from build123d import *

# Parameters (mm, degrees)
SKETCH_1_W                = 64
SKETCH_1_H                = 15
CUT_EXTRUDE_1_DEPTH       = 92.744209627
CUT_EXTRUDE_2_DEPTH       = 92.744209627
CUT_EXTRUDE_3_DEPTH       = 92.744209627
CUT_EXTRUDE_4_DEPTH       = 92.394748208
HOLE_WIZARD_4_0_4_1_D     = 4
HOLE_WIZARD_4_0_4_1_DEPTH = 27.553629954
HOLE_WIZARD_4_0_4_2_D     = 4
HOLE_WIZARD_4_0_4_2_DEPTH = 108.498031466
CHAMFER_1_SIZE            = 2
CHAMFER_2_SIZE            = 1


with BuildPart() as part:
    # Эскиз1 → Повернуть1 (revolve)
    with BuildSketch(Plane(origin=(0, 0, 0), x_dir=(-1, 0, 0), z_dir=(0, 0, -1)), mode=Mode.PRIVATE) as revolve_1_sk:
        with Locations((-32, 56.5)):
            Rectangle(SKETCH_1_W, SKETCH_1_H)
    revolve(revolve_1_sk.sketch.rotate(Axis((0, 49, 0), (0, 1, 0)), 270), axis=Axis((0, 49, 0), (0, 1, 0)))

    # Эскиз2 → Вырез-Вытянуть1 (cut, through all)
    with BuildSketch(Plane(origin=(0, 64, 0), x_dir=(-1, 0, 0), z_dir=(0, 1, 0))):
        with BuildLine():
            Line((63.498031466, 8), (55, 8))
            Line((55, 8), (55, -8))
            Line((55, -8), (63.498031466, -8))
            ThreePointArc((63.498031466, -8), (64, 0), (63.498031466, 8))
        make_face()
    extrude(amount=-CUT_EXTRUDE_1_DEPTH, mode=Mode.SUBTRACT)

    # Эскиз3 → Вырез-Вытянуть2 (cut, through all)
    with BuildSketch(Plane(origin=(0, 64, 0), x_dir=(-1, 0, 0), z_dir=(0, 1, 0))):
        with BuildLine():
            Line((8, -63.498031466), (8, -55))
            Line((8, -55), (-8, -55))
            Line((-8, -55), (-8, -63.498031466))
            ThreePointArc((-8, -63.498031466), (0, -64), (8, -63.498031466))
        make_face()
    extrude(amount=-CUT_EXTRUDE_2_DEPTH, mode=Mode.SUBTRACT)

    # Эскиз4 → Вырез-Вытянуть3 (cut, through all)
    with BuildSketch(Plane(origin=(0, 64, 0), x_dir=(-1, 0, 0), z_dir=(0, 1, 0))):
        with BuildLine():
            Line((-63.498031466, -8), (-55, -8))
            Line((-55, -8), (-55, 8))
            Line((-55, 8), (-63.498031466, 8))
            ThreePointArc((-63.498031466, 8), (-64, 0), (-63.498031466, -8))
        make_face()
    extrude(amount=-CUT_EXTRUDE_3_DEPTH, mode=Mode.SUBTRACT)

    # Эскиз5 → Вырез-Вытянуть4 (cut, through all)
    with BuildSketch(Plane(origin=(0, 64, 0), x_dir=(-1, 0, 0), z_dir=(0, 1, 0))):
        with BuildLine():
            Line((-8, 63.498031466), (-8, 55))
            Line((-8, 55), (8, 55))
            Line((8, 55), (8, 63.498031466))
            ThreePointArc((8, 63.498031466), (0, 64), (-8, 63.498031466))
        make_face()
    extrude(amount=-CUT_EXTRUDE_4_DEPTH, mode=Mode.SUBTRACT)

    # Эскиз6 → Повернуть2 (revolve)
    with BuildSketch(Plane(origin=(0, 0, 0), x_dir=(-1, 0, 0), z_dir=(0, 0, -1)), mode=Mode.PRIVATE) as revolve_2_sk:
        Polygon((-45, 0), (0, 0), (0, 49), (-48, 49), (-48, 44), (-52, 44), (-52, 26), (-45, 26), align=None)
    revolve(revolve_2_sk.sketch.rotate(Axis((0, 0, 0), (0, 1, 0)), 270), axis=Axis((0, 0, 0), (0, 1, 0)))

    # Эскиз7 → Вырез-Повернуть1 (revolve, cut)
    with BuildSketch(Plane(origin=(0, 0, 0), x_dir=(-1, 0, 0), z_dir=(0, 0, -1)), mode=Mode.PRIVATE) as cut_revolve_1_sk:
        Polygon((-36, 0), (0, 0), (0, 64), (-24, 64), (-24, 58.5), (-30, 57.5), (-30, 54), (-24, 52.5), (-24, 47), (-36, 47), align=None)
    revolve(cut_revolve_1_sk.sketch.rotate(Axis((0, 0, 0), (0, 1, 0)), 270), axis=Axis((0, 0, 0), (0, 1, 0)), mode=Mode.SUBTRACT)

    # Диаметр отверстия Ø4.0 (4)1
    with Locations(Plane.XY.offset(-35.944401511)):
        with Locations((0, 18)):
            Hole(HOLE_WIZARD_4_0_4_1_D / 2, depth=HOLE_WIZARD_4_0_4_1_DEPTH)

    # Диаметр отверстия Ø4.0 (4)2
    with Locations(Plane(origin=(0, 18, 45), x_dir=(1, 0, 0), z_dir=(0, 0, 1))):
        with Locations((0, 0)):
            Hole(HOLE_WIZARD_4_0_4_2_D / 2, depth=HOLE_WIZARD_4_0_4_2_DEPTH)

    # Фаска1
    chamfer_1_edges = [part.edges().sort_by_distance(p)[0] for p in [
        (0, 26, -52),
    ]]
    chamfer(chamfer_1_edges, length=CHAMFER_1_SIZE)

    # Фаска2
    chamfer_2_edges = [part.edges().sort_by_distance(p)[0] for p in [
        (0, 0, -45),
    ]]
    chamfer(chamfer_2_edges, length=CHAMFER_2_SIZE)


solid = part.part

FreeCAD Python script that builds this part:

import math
import FreeCAD as App
import Part
import Sketcher

V = App.Vector


def edges_at(feature, points):
    """Names of the edges that pass closest to the given points."""
    edges = feature.Shape.Edges
    near = lambda p: min(range(len(edges)), key=lambda i: edges[i].distToShape(Part.Vertex(*p))[0])
    return sorted({f"Edge{near(p) + 1}" for p in points})


def add_polygon(sketch, points):
    """Adds a closed chain of lines whose ends are joined by coincident constraints."""
    first, n = sketch.GeometryCount, len(points)
    for a, b in zip(points, points[1:] + points[:1]):
        sketch.addGeometry(Part.LineSegment(App.Vector(*a, 0), App.Vector(*b, 0)), False)
    for i in range(n):
        sketch.addConstraint(Sketcher.Constraint("Coincident", first + i, 2, first + (i + 1) % n, 1))

doc = App.newDocument("Part")
body = doc.addObject("PartDesign::Body", "Body")

# Sketch on XY plane
sketch1 = doc.addObject("Sketcher::SketchObject", "Sketch")
body.addObject(sketch1)
sketch1.AttachmentSupport = (doc.XY_Plane, [""])
sketch1.MapMode = "FlatFace"
add_polygon(sketch1, [(64, 64), (64, 49), (0, 49), (0, 64)])  # lines 0-3
sketch1.addConstraint([
    Sketcher.Constraint("Vertical", 0),
    Sketcher.Constraint("Horizontal", 1),
    Sketcher.Constraint("Vertical", 2),
    Sketcher.Constraint("Horizontal", 3),
    Sketcher.Constraint("PointOnObject", 1, 2, -2),
    Sketcher.Constraint("DistanceX", 1, 2, 1, 1, 64.0),
    Sketcher.Constraint("DistanceY", 0, 2, 0, 1, 15.0),
    Sketcher.Constraint("DistanceY", -1, 1, 0, 2, 49.0),
])
revolution = doc.addObject("PartDesign::Revolution", "Revolution")
body.addObject(revolution)
revolution.Profile = sketch1
revolution.ReferenceAxis = (sketch1, ["V_Axis"])
revolution.Angle = 360

# Sketch on XZ plane
sketch2 = doc.addObject("Sketcher::SketchObject", "Sketch001")
body.addObject(sketch2)
sketch2.AttachmentSupport = (doc.XZ_Plane, [""])
sketch2.MapMode = "FlatFace"
sketch2.AttachmentOffset = App.Placement(V(0, 0, -64), App.Rotation())
sketch2.addGeometry([
    Part.LineSegment(V(-63.498031, 8, 0), V(-55, 8, 0)),
    Part.LineSegment(V(-55, 8, 0), V(-55, -8, 0)),
    Part.LineSegment(V(-55, -8, 0), V(-63.498031, -8, 0)),
    Part.ArcOfCircle(Part.Circle(V(0, 0, 0), V(0, 0, 1), 64), math.radians(172.819244), math.radians(187.180756)),
], False)
sketch2.addConstraint([
    Sketcher.Constraint("Coincident", 0, 2, 1, 1),
    Sketcher.Constraint("Coincident", 1, 2, 2, 1),
    Sketcher.Constraint("Coincident", 2, 2, 3, 2),
    Sketcher.Constraint("Coincident", 3, 1, 0, 1),
    Sketcher.Constraint("Horizontal", 0),
    Sketcher.Constraint("Vertical", 1),
    Sketcher.Constraint("Horizontal", 2),
    Sketcher.Constraint("Coincident", 3, 3, -1, 1),
    Sketcher.Constraint("Vertical", 2, 2, 3, 1),
    Sketcher.Constraint("Radius", 3, 64.0),
    Sketcher.Constraint("DistanceY", 1, 2, 1, 1, 16.0),
    Sketcher.Constraint("DistanceX", 0, 2, -1, 1, 55.0),
])
pocket1 = doc.addObject("PartDesign::Pocket", "Pocket")
body.addObject(pocket1)
pocket1.Profile = sketch2
pocket1.Type = "ThroughAll"
pocket1.Reversed = True

# Sketch on XZ plane
sketch3 = doc.addObject("Sketcher::SketchObject", "Sketch002")
body.addObject(sketch3)
sketch3.AttachmentSupport = (doc.XZ_Plane, [""])
sketch3.MapMode = "FlatFace"
sketch3.AttachmentOffset = App.Placement(V(0, 0, -64), App.Rotation())
sketch3.addGeometry([
    Part.LineSegment(V(-8, -63.498031, 0), V(-8, -55, 0)),
    Part.LineSegment(V(-8, -55, 0), V(8, -55, 0)),
    Part.LineSegment(V(8, -55, 0), V(8, -63.498031, 0)),
    Part.ArcOfCircle(Part.Circle(V(0, 0, 0), V(0, 0, 1), 64), math.radians(-97.180756), math.radians(-82.819244)),
], False)
sketch3.addConstraint([
    Sketcher.Constraint("Coincident", 0, 2, 1, 1),
    Sketcher.Constraint("Coincident", 1, 2, 2, 1),
    Sketcher.Constraint("Coincident", 2, 2, 3, 2),
    Sketcher.Constraint("Coincident", 3, 1, 0, 1),
    Sketcher.Constraint("Vertical", 0),
    Sketcher.Constraint("Horizontal", 1),
    Sketcher.Constraint("Vertical", 2),
    Sketcher.Constraint("Coincident", 3, 3, -1, 1),
    Sketcher.Constraint("Horizontal", 2, 2, 3, 1),
    Sketcher.Constraint("Radius", 3, 64.0),
    Sketcher.Constraint("DistanceX", 1, 1, 1, 2, 16.0),
    Sketcher.Constraint("DistanceY", 0, 2, -1, 1, 55.0),
])
pocket2 = doc.addObject("PartDesign::Pocket", "Pocket001")
body.addObject(pocket2)
pocket2.Profile = sketch3
pocket2.Type = "ThroughAll"
pocket2.Reversed = True

# Sketch on XZ plane
sketch4 = doc.addObject("Sketcher::SketchObject", "Sketch003")
body.addObject(sketch4)
sketch4.AttachmentSupport = (doc.XZ_Plane, [""])
sketch4.MapMode = "FlatFace"
sketch4.AttachmentOffset = App.Placement(V(0, 0, -64), App.Rotation())
sketch4.addGeometry([
    Part.LineSegment(V(63.498031, -8, 0), V(55, -8, 0)),
    Part.LineSegment(V(55, -8, 0), V(55, 8, 0)),
    Part.LineSegment(V(55, 8, 0), V(63.498031, 8, 0)),
    Part.ArcOfCircle(Part.Circle(V(0, 0, 0), V(0, 0, 1), 64), math.radians(-7.180756), math.radians(7.180756)),
], False)
sketch4.addConstraint([
    Sketcher.Constraint("Coincident", 0, 2, 1, 1),
    Sketcher.Constraint("Coincident", 1, 2, 2, 1),
    Sketcher.Constraint("Coincident", 2, 2, 3, 2),
    Sketcher.Constraint("Coincident", 3, 1, 0, 1),
    Sketcher.Constraint("Horizontal", 0),
    Sketcher.Constraint("Vertical", 1),
    Sketcher.Constraint("Horizontal", 2),
    Sketcher.Constraint("Coincident", 3, 3, -1, 1),
    Sketcher.Constraint("Vertical", 2, 2, 3, 1),
    Sketcher.Constraint("Radius", 3, 64.0),
    Sketcher.Constraint("DistanceY", 1, 1, 1, 2, 16.0),
    Sketcher.Constraint("DistanceX", -1, 1, 0, 2, 55.0),
])
pocket3 = doc.addObject("PartDesign::Pocket", "Pocket002")
body.addObject(pocket3)
pocket3.Profile = sketch4
pocket3.Type = "ThroughAll"
pocket3.Reversed = True

# Sketch on XZ plane
sketch5 = doc.addObject("Sketcher::SketchObject", "Sketch004")
body.addObject(sketch5)
sketch5.AttachmentSupport = (doc.XZ_Plane, [""])
sketch5.MapMode = "FlatFace"
sketch5.AttachmentOffset = App.Placement(V(0, 0, -64), App.Rotation())
sketch5.addGeometry([
    Part.LineSegment(V(8, 63.498031, 0), V(8, 55, 0)),
    Part.LineSegment(V(8, 55, 0), V(-8, 55, 0)),
    Part.LineSegment(V(-8, 55, 0), V(-8, 63.498031, 0)),
    Part.ArcOfCircle(Part.Circle(V(0, 0, 0), V(0, 0, 1), 64), math.radians(82.819244), math.radians(97.180756)),
], False)
sketch5.addConstraint([
    Sketcher.Constraint("Coincident", 0, 2, 1, 1),
    Sketcher.Constraint("Coincident", 1, 2, 2, 1),
    Sketcher.Constraint("Coincident", 2, 2, 3, 2),
    Sketcher.Constraint("Coincident", 3, 1, 0, 1),
    Sketcher.Constraint("Vertical", 0),
    Sketcher.Constraint("Horizontal", 1),
    Sketcher.Constraint("Vertical", 2),
    Sketcher.Constraint("Coincident", 3, 3, -1, 1),
    Sketcher.Constraint("Horizontal", 2, 2, 3, 1),
    Sketcher.Constraint("Radius", 3, 64.0),
    Sketcher.Constraint("DistanceX", 1, 2, 1, 1, 16.0),
    Sketcher.Constraint("DistanceY", -1, 1, 0, 2, 55.0),
])
pocket4 = doc.addObject("PartDesign::Pocket", "Pocket003")
body.addObject(pocket4)
pocket4.Profile = sketch5
pocket4.Type = "ThroughAll"
pocket4.Reversed = True

# Sketch on XY plane
sketch6 = doc.addObject("Sketcher::SketchObject", "Sketch005")
body.addObject(sketch6)
sketch6.AttachmentSupport = (doc.XY_Plane, [""])
sketch6.MapMode = "FlatFace"
add_polygon(sketch6, [(45, 0), (0, 0), (0, 49), (48, 49), (48, 44), (52, 44), (52, 26), (45, 26)])  # lines 0-7
sketch6.addConstraint([
    Sketcher.Constraint("Horizontal", 0),
    Sketcher.Constraint("Vertical", 1),
    Sketcher.Constraint("Horizontal", 2),
    Sketcher.Constraint("Vertical", 3),
    Sketcher.Constraint("Horizontal", 4),
    Sketcher.Constraint("Vertical", 5),
    Sketcher.Constraint("Horizontal", 6),
    Sketcher.Constraint("Vertical", 7),
    Sketcher.Constraint("Coincident", 0, 2, -1, 1),
    Sketcher.Constraint("DistanceX", 0, 2, 0, 1, 45.0),
    Sketcher.Constraint("DistanceX", 2, 1, 2, 2, 48.0),
    Sketcher.Constraint("DistanceX", 4, 1, 4, 2, 4.0),
    Sketcher.Constraint("DistanceY", 1, 1, 1, 2, 49.0),
    Sketcher.Constraint("DistanceY", 3, 2, 3, 1, 5.0),
    Sketcher.Constraint("DistanceY", 5, 2, 5, 1, 18.0),
])
revolution2 = doc.addObject("PartDesign::Revolution", "Revolution001")
body.addObject(revolution2)
revolution2.Profile = sketch6
revolution2.ReferenceAxis = (sketch6, ["V_Axis"])
revolution2.Angle = 360

# Sketch on XY plane
sketch7 = doc.addObject("Sketcher::SketchObject", "Sketch006")
body.addObject(sketch7)
sketch7.AttachmentSupport = (doc.XY_Plane, [""])
sketch7.MapMode = "FlatFace"
add_polygon(sketch7, [(36, 0), (0, 0), (0, 64), (24, 64), (24, 58.5), (30, 57.5), (30, 54), (24, 52.5), (24, 47), (36, 47)])  # lines 0-9
sketch7.addConstraint([
    Sketcher.Constraint("Horizontal", 0),
    Sketcher.Constraint("Vertical", 1),
    Sketcher.Constraint("Horizontal", 2),
    Sketcher.Constraint("Vertical", 3),
    Sketcher.Constraint("Vertical", 5),
    Sketcher.Constraint("Vertical", 7),
    Sketcher.Constraint("Horizontal", 8),
    Sketcher.Constraint("Vertical", 9),
    Sketcher.Constraint("Coincident", 0, 2, -1, 1),
    Sketcher.Constraint("Vertical", 3, 2, 6, 2),
    Sketcher.Constraint("Equal", 3, 7),
    Sketcher.Constraint("DistanceX", 0, 2, 0, 1, 36.0),
    Sketcher.Constraint("DistanceX", 2, 1, 2, 2, 24.0),
    Sketcher.Constraint("DistanceY", 1, 1, 1, 2, 64.0),
    Sketcher.Constraint("DistanceY", 9, 2, 9, 1, 47.0),
    Sketcher.Constraint("DistanceY", 3, 2, 3, 1, 5.5),
    Sketcher.Constraint("DistanceY", 5, 2, 5, 1, 3.5),
    Sketcher.Constraint("DistanceX", -1, 1, 4, 2, 30.0),
    Sketcher.Constraint("DistanceY", -1, 1, 5, 2, 54.0),
])
groove = doc.addObject("PartDesign::Groove", "Groove")
body.addObject(groove)
groove.Profile = sketch7
groove.ReferenceAxis = (sketch7, ["V_Axis"])
groove.Angle = 360

# Sketch on XY plane
sketch8 = doc.addObject("Sketcher::SketchObject", "Sketch007")
body.addObject(sketch8)
sketch8.AttachmentSupport = (doc.XY_Plane, [""])
sketch8.MapMode = "FlatFace"
sketch8.AttachmentOffset = App.Placement(V(0, 0, -35.944402), App.Rotation())
sketch8.addGeometry(Part.Circle(V(0, 18, 0), V(0, 0, 1), 2), False)
sketch8.addConstraint([
    Sketcher.Constraint("PointOnObject", 0, 3, -2),
    Sketcher.Constraint("Diameter", 0, 4.0),
    Sketcher.Constraint("DistanceY", -1, 1, 0, 3, 18.0),
])
doc.recompute()
hole = doc.addObject("PartDesign::Hole", "Hole")
body.addObject(hole)
hole.Profile = sketch8
hole.ThreadType = "None"
hole.Diameter = 4
hole.DepthType = "Dimension"
hole.Depth = 27.55363
hole.DrillPoint = "Flat"

# Sketch on XY plane
sketch9 = doc.addObject("Sketcher::SketchObject", "Sketch008")
body.addObject(sketch9)
sketch9.AttachmentSupport = (doc.XY_Plane, [""])
sketch9.MapMode = "FlatFace"
sketch9.AttachmentOffset = App.Placement(V(0, 0, 45), App.Rotation())
sketch9.addGeometry(Part.Circle(V(0, 18, 0), V(0, 0, 1), 2), False)
sketch9.addConstraint([
    Sketcher.Constraint("PointOnObject", 0, 3, -2),
    Sketcher.Constraint("Diameter", 0, 4.0),
    Sketcher.Constraint("DistanceY", -1, 1, 0, 3, 18.0),
])
doc.recompute()
hole2 = doc.addObject("PartDesign::Hole", "Hole001")
body.addObject(hole2)
hole2.Profile = sketch9
hole2.ThreadType = "None"
hole2.Diameter = 4
hole2.DepthType = "Dimension"
hole2.Depth = 108.498031
hole2.DrillPoint = "Flat"
doc.recompute()

chamfer = doc.addObject("PartDesign::Chamfer", "Chamfer")
body.addObject(chamfer)
chamfer.Base = (hole2, edges_at(hole2, [(0, 26, -52)]))
chamfer.Size = 2
doc.recompute()

chamfer2 = doc.addObject("PartDesign::Chamfer", "Chamfer001")
body.addObject(chamfer2)
chamfer2.Base = (chamfer, edges_at(chamfer, [(0, 0, -45)]))
chamfer2.Size = 1

doc.recompute()
